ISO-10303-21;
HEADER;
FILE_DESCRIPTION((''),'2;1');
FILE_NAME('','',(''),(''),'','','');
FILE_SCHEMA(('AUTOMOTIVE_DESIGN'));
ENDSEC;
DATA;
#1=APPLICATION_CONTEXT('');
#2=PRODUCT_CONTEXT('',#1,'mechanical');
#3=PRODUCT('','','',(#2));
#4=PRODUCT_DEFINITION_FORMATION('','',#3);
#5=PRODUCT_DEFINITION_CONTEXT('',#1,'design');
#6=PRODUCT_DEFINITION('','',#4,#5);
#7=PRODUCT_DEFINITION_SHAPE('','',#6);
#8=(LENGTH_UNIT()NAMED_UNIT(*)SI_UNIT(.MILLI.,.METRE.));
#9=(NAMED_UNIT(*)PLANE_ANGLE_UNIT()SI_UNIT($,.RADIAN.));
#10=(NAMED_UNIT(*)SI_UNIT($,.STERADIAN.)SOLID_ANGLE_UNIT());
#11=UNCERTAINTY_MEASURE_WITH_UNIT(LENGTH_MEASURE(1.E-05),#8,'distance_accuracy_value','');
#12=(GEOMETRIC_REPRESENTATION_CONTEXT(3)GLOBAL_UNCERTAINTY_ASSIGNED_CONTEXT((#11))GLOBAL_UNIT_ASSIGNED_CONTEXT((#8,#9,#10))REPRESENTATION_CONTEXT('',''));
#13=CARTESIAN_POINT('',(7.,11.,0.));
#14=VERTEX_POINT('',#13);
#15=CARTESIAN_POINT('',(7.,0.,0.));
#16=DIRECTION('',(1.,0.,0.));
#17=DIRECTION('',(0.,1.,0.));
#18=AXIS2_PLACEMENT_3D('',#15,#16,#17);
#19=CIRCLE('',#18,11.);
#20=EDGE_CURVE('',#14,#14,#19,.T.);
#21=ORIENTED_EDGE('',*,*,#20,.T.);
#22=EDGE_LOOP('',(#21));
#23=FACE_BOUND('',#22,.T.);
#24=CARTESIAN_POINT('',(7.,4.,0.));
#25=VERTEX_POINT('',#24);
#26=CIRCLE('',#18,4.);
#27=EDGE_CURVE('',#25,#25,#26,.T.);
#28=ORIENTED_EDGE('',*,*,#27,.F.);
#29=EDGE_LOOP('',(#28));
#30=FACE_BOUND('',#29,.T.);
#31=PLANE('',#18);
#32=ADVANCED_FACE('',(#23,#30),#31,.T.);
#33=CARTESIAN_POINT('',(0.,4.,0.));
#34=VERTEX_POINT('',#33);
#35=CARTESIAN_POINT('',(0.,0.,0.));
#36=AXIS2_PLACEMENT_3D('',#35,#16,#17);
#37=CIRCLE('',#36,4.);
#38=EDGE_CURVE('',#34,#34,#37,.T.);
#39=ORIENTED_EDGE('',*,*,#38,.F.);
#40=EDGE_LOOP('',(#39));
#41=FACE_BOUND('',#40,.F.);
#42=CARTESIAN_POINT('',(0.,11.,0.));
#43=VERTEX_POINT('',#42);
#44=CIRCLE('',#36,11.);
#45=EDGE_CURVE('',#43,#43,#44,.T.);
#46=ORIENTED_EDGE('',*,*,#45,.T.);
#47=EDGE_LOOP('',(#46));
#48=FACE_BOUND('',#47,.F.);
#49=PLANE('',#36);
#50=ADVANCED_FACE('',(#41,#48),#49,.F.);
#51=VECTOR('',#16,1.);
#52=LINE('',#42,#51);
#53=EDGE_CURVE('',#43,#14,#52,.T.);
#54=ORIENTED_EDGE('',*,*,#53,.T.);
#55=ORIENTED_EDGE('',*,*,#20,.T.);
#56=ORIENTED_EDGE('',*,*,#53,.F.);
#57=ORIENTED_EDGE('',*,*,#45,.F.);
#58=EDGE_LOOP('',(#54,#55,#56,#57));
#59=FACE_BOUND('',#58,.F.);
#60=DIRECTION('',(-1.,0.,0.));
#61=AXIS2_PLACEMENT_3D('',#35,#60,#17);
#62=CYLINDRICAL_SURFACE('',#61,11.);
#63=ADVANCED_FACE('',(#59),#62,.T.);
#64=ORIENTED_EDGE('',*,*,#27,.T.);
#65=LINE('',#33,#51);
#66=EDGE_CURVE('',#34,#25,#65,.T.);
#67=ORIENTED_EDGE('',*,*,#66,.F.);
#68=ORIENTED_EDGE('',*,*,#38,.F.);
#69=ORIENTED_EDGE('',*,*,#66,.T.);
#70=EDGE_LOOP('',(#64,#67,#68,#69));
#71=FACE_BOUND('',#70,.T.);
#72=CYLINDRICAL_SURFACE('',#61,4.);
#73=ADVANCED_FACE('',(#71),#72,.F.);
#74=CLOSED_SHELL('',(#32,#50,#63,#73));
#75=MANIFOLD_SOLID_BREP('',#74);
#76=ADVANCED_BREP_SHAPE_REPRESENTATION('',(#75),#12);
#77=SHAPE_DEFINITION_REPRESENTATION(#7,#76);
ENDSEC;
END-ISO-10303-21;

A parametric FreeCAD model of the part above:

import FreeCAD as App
import Part
import Sketcher

doc = App.newDocument("Part")
body = doc.addObject("PartDesign::Body", "Body")

# Sketch on YZ plane
sketch1 = body.newObject("Sketcher::SketchObject", "Sketch")
sketch1.AttachmentSupport = (doc.getObject("YZ_Plane"), [""])
sketch1.MapMode = "FlatFace"
sketch1.addGeometry([
    Part.Circle(App.Vector(0, 0, 0), App.Vector(0, 0, 1), 11),
    Part.Circle(App.Vector(0, 0, 0), App.Vector(0, 0, 1), 4),
], False)
sketch1.addConstraint([
    Sketcher.Constraint("Coincident", 0, 3, -1, 1),
    Sketcher.Constraint("Coincident", 1, 3, -1, 1),
    Sketcher.Constraint("Diameter", 0, 22.0),
    Sketcher.Constraint("Diameter", 1, 8.0),
])
pad1 = body.newObject("PartDesign::Pad", "Pad")
pad1.Profile = sketch1
pad1.Length = 7

doc.recompute()
